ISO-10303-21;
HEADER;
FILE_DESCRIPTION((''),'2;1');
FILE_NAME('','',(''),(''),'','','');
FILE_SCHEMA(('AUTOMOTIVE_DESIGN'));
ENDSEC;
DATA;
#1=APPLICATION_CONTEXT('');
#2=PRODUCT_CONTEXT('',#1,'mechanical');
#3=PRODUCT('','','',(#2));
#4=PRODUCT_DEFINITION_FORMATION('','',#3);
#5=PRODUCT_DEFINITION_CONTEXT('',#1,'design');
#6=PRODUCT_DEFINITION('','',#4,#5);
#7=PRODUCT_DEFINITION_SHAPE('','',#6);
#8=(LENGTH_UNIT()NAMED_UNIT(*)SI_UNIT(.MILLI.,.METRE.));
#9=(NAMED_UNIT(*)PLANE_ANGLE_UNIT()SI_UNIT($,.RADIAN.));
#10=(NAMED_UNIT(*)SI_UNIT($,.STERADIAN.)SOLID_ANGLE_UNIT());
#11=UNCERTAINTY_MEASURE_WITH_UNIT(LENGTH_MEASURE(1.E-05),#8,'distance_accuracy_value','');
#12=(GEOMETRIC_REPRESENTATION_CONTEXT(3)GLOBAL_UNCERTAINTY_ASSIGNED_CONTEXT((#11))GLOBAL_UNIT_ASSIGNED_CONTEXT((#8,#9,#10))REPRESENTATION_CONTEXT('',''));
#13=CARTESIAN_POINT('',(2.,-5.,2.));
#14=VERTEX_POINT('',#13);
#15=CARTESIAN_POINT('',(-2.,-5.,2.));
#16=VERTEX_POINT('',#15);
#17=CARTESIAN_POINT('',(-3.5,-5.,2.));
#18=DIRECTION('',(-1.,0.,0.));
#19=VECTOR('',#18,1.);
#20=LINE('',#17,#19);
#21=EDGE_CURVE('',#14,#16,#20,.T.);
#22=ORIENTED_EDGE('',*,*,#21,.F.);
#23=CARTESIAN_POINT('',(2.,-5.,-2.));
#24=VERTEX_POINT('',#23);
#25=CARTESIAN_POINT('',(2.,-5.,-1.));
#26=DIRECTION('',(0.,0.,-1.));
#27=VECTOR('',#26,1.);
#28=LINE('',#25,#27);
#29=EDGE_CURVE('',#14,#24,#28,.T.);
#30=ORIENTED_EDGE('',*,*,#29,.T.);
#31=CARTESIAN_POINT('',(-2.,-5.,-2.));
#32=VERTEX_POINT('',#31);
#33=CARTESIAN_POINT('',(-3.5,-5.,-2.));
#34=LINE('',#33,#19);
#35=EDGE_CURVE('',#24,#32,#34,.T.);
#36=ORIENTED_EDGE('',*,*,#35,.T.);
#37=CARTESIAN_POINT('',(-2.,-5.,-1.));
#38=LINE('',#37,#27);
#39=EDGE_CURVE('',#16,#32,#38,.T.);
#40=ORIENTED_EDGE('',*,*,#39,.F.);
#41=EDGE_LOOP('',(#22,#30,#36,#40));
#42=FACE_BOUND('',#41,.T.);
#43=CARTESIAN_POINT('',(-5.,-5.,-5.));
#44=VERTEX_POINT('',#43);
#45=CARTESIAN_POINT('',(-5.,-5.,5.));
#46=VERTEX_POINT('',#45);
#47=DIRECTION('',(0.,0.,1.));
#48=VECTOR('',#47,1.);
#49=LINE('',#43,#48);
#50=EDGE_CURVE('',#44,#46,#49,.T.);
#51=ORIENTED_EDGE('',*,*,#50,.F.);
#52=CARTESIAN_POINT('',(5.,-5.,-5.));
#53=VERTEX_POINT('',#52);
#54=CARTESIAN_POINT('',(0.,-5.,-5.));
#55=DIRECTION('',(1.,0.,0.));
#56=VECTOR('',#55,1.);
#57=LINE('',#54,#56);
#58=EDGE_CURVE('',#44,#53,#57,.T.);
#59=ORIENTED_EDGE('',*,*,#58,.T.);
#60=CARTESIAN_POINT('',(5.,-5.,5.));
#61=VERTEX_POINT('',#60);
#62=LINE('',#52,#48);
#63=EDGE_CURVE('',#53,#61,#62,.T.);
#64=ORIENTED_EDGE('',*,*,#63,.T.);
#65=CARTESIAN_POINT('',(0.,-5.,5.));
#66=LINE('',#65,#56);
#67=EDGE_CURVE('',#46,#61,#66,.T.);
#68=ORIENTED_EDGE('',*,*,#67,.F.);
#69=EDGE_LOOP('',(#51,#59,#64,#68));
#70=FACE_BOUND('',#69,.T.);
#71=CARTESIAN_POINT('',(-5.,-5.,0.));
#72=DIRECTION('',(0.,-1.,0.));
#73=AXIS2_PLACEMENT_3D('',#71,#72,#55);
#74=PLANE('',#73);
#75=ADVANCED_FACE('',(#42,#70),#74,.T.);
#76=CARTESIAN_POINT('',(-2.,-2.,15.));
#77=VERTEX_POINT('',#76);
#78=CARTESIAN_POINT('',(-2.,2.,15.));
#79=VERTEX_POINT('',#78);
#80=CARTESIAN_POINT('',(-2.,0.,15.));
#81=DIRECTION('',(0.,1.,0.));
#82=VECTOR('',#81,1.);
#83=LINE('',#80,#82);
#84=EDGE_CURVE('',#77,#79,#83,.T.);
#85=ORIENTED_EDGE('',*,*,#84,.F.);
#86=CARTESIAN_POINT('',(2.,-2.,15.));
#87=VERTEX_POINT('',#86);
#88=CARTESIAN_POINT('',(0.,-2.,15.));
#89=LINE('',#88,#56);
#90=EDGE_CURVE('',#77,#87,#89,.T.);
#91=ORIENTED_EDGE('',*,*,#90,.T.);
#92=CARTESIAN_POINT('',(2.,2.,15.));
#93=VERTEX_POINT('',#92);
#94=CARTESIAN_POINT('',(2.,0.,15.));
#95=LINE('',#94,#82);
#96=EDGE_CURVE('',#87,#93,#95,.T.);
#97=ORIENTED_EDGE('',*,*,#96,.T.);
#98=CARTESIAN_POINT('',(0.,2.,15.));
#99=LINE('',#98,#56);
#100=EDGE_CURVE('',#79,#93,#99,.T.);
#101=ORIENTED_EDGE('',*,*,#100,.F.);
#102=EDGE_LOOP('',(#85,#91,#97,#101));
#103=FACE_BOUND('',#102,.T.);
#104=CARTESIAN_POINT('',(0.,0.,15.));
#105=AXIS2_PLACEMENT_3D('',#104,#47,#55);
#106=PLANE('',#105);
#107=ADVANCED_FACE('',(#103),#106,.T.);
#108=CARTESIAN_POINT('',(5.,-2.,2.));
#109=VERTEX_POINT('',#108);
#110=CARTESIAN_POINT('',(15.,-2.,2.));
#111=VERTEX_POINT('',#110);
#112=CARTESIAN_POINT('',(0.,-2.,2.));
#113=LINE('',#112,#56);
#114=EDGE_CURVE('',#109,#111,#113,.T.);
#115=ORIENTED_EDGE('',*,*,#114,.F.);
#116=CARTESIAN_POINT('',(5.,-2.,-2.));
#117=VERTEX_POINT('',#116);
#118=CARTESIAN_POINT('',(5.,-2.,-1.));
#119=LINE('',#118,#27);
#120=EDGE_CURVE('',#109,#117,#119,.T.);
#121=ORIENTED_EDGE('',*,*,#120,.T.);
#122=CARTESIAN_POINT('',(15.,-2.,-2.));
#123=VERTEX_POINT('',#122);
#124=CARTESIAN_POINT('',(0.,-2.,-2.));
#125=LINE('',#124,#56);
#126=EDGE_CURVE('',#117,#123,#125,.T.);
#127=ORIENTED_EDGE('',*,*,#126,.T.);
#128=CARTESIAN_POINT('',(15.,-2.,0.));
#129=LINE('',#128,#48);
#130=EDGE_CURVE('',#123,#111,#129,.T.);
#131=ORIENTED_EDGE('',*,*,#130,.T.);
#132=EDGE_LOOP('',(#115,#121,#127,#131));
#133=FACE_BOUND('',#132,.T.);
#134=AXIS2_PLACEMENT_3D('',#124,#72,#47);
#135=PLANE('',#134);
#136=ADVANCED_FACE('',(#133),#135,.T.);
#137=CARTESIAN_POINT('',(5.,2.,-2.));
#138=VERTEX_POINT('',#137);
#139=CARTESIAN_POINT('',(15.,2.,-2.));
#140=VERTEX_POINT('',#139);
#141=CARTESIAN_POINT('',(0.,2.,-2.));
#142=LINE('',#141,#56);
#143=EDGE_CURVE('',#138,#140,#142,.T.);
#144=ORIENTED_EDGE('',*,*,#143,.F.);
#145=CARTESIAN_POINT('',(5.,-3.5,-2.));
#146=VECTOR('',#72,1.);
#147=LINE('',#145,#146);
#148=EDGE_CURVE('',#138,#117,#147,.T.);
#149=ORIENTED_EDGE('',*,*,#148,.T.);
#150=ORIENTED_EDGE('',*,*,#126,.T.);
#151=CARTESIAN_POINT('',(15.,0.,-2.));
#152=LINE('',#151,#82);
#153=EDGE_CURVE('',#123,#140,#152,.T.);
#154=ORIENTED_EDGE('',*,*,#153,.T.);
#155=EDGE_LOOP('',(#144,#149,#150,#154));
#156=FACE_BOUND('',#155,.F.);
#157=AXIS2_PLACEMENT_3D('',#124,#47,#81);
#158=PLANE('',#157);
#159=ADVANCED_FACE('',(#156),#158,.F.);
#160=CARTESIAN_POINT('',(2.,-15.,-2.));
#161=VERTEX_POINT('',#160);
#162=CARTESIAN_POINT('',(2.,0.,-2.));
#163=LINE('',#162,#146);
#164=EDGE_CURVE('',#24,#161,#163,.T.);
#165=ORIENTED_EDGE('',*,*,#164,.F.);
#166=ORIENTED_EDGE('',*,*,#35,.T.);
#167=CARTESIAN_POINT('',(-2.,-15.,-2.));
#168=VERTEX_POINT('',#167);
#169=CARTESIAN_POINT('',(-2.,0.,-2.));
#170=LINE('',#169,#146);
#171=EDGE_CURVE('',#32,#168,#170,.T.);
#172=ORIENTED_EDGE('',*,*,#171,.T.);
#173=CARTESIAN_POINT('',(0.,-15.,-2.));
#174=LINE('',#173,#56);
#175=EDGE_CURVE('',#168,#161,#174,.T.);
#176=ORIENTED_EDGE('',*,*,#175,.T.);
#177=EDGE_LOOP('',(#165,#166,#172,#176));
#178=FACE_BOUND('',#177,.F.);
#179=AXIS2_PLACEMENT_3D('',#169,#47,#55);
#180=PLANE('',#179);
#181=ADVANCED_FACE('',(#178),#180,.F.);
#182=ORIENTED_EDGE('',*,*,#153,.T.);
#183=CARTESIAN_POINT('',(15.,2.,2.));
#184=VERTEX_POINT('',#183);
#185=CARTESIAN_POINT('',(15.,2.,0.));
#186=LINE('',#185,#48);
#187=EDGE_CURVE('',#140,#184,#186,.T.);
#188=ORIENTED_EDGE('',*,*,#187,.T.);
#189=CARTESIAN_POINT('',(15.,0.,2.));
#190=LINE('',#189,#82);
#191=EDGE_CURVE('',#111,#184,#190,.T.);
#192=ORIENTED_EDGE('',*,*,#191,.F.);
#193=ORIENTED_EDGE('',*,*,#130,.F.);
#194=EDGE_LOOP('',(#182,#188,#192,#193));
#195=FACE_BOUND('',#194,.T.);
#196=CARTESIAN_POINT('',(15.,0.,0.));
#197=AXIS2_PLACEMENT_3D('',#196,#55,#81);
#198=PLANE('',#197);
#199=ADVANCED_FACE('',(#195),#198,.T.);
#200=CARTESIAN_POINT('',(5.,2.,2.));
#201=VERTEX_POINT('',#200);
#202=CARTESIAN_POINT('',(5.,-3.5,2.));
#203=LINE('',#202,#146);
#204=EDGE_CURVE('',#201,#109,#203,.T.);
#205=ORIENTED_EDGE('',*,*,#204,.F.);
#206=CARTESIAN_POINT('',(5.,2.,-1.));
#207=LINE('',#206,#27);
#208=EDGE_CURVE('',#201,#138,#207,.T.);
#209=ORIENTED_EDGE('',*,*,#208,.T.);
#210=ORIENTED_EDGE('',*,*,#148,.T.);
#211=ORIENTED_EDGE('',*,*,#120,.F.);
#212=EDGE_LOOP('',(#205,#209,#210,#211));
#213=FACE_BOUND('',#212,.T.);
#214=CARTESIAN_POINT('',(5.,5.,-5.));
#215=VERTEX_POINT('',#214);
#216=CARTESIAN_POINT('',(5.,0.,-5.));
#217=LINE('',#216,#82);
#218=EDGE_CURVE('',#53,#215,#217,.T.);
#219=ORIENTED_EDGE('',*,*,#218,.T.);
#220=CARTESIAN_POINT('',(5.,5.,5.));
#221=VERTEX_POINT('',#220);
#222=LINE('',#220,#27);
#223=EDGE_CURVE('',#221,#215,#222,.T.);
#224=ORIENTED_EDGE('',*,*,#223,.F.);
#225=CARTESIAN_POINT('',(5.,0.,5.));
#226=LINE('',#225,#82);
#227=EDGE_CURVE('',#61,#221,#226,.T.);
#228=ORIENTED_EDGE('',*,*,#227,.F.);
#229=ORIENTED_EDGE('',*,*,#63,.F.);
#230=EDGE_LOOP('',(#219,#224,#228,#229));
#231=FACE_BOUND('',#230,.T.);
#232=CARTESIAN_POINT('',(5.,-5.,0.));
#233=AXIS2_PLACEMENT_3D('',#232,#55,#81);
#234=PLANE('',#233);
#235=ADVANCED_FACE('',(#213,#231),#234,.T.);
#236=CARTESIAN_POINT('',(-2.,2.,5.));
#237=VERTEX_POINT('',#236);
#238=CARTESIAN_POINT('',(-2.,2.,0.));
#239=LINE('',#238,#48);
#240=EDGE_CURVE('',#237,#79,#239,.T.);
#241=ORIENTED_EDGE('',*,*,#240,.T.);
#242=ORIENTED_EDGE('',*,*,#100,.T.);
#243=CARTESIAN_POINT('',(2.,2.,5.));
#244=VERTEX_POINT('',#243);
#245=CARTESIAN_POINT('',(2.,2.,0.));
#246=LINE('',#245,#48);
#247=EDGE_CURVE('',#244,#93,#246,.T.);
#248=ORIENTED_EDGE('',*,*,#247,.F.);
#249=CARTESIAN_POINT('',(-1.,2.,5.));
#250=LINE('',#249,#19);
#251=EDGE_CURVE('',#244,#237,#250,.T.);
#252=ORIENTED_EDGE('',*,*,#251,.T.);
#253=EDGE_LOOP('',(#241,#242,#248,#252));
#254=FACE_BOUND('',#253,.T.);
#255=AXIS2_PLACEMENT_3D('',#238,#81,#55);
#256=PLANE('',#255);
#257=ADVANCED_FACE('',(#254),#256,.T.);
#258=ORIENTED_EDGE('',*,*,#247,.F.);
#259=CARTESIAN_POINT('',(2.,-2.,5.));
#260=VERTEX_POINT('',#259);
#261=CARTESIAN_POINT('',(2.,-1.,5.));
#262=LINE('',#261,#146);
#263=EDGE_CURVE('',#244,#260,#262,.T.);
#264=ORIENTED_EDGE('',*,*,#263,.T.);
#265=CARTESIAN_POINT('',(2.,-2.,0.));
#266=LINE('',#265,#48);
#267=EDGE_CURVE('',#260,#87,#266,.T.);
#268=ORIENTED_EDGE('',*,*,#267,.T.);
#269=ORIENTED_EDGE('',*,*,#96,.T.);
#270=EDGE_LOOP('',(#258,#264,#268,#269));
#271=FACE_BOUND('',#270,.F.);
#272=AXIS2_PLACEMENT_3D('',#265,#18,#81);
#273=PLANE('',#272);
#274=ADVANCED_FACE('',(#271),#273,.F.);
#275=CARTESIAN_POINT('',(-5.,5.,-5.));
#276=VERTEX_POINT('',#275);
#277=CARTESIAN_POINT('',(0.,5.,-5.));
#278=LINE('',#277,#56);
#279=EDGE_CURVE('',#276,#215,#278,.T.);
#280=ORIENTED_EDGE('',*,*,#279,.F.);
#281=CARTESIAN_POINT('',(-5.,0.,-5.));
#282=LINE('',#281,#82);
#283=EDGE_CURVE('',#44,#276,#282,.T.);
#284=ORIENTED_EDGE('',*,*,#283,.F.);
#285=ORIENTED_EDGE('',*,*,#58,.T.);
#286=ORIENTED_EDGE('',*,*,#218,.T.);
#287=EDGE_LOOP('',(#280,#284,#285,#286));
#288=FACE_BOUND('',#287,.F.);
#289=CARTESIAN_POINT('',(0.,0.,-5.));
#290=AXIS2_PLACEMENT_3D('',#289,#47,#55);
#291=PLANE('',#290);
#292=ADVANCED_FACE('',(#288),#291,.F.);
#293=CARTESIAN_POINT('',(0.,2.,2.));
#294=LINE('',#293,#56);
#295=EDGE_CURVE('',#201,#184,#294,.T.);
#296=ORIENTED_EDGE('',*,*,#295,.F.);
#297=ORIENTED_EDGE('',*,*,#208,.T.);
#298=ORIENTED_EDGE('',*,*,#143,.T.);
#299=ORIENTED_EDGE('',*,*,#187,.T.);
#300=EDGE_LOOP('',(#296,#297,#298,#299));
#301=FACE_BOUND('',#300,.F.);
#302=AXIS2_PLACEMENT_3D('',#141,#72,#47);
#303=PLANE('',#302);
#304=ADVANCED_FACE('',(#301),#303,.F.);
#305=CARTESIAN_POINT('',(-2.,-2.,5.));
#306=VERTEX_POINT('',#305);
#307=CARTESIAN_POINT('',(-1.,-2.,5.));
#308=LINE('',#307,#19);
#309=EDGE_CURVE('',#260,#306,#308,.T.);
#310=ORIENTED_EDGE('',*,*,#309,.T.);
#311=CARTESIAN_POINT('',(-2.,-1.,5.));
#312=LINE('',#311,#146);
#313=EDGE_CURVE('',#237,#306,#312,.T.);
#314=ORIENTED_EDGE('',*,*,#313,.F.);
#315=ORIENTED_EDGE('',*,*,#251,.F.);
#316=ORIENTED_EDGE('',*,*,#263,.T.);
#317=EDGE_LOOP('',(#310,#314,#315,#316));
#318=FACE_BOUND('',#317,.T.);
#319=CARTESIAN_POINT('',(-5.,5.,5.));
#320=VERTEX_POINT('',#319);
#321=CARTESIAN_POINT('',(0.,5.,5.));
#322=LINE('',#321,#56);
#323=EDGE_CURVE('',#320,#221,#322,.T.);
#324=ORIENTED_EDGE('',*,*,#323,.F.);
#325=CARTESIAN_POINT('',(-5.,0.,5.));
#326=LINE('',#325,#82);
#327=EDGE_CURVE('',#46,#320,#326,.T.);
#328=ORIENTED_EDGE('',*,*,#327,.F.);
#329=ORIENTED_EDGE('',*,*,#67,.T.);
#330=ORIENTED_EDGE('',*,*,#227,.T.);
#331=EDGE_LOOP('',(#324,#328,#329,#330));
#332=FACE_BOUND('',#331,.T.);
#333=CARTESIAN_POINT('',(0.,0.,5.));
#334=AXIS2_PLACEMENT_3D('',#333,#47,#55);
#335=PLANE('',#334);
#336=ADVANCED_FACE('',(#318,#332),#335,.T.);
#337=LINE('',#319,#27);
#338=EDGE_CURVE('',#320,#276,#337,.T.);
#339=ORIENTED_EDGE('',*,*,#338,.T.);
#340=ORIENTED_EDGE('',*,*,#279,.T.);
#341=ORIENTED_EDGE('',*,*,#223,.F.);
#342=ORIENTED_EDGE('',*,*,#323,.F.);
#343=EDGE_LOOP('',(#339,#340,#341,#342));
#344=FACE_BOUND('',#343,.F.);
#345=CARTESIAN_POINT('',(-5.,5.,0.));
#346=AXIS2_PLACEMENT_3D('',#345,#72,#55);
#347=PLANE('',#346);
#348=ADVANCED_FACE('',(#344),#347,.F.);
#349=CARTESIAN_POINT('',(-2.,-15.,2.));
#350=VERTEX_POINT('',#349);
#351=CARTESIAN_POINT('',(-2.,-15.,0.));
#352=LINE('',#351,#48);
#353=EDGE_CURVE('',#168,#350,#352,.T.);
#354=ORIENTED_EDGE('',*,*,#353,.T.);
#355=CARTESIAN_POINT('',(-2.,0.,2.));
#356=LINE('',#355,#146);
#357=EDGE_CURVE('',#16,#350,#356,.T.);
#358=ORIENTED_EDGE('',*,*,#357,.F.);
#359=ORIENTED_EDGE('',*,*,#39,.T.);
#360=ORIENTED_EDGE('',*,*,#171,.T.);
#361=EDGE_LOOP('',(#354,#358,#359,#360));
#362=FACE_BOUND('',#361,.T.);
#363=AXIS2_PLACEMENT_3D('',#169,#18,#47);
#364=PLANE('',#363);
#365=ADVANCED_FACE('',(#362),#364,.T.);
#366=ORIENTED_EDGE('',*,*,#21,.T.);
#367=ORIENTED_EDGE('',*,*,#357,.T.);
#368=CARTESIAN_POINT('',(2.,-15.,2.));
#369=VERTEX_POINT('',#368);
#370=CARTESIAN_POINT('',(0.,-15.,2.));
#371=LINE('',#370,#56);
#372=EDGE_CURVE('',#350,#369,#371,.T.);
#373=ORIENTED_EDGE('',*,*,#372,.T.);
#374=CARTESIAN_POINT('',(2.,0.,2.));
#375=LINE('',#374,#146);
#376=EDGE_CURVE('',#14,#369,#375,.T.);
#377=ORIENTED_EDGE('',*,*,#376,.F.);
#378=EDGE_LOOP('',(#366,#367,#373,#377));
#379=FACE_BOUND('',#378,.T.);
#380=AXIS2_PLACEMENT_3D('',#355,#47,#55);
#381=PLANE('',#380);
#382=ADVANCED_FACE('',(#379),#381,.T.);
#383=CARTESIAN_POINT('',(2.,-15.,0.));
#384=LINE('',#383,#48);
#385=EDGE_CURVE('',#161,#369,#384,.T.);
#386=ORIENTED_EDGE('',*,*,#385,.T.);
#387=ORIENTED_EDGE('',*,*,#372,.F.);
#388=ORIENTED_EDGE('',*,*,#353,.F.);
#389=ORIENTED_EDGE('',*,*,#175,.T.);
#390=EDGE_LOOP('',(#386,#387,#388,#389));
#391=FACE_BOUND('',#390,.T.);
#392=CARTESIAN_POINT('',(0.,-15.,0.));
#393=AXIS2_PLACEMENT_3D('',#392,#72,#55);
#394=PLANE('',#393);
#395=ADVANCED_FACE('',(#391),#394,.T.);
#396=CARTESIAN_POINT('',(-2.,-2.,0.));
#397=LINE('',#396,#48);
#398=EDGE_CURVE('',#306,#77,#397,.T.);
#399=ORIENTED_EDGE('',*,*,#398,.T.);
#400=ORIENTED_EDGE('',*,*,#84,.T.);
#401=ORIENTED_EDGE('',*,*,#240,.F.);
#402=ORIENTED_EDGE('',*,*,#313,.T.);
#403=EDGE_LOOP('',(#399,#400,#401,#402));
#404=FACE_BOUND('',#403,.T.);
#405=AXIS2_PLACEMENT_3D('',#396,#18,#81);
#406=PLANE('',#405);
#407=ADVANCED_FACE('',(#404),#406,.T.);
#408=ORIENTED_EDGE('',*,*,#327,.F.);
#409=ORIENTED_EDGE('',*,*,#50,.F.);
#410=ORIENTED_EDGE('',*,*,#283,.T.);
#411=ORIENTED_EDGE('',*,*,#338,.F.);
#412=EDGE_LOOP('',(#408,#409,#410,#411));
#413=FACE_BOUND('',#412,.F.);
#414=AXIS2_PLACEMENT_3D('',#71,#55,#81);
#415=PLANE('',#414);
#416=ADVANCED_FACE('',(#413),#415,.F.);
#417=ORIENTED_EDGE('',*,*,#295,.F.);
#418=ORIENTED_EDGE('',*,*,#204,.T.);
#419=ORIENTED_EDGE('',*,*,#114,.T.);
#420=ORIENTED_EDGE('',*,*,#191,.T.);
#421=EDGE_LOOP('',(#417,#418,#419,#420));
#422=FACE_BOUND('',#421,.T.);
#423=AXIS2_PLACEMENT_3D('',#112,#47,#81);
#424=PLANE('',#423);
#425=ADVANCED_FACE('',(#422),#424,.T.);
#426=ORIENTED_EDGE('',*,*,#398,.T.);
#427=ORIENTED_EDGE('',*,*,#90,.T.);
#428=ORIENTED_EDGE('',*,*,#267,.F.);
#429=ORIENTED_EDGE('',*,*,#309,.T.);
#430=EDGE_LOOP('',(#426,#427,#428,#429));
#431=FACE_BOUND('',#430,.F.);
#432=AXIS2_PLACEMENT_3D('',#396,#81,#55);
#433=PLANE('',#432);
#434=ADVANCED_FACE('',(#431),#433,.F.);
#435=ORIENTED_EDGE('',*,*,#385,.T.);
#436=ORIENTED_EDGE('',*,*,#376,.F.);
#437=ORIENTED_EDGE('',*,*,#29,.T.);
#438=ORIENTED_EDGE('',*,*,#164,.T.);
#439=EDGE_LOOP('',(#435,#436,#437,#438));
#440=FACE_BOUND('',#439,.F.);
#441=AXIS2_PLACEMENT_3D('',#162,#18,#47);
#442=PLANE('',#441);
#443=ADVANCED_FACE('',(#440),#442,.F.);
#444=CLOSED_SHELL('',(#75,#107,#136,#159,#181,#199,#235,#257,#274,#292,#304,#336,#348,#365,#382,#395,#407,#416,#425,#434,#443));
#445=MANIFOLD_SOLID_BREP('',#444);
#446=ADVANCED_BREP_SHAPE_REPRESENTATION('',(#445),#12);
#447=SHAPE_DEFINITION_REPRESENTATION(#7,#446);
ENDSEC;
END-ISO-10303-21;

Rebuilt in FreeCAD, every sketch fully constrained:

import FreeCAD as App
import Part
import Sketcher

V = App.Vector
Q = App.Units.Quantity


def add_polygon(sketch, points):
    """Adds a closed chain of lines whose ends are joined by coincident constraints."""
    first, n = sketch.GeometryCount, len(points)
    for a, b in zip(points, points[1:] + points[:1]):
        sketch.addGeometry(Part.LineSegment(App.Vector(*a, 0), App.Vector(*b, 0)), False)
    for i in range(n):
        sketch.addConstraint(Sketcher.Constraint("Coincident", first + i, 2, first + (i + 1) % n, 1))

doc = App.newDocument("Part")
body = doc.addObject("PartDesign::Body", "Body")

sketch1 = doc.addObject("Sketcher::SketchObject", "Sketch")
body.addObject(sketch1)
sketch1.AttachmentSupport = (doc.XY_Plane, [""])
sketch1.MapMode = "FlatFace"
add_polygon(sketch1, [(-5, 5), (-5, -5), (5, -5), (5, 5)])
sketch1.addConstraint([
    Sketcher.Constraint("Vertical", 0),
    Sketcher.Constraint("Horizontal", 1),
    Sketcher.Constraint("Vertical", 2),
    Sketcher.Constraint("Horizontal", 3),
    Sketcher.Constraint("Symmetric", 0, 2, 2, 2, -1, 1),
    Sketcher.Constraint("Equal", 3, 0),
    Sketcher.Constraint("DistanceX", 1, 1, 1, 2, Q("10 mm")),
])
pad1 = doc.addObject("PartDesign::Pad", "Pad")
body.addObject(pad1)
pad1.Profile = sketch1
pad1.Length = 10
pad1.Midplane = True

sketch2 = doc.addObject("Sketcher::SketchObject", "Sketch001")
body.addObject(sketch2)
sketch2.AttachmentSupport = (doc.XY_Plane, [""])
sketch2.MapMode = "FlatFace"
add_polygon(sketch2, [(-2, 2), (-2, -2), (2, -2), (2, 2)])
sketch2.addConstraint([
    Sketcher.Constraint("Vertical", 0),
    Sketcher.Constraint("Horizontal", 1),
    Sketcher.Constraint("Vertical", 2),
    Sketcher.Constraint("Horizontal", 3),
    Sketcher.Constraint("Symmetric", 0, 2, 2, 2, -1, 1),
    Sketcher.Constraint("Equal", 3, 0),
    Sketcher.Constraint("DistanceX", 1, 1, 1, 2, Q("4 mm")),
])
pad2 = doc.addObject("PartDesign::Pad", "Pad001")
body.addObject(pad2)
pad2.Profile = sketch2
pad2.Length = 15

sketch3 = doc.addObject("Sketcher::SketchObject", "Sketch002")
body.addObject(sketch3)
sketch3.AttachmentSupport = (doc.XZ_Plane, [""])
sketch3.MapMode = "FlatFace"
add_polygon(sketch3, [(-2, 2), (-2, -2), (2, -2), (2, 2)])
sketch3.addConstraint([
    Sketcher.Constraint("Vertical", 0),
    Sketcher.Constraint("Horizontal", 1),
    Sketcher.Constraint("Vertical", 2),
    Sketcher.Constraint("Horizontal", 3),
    Sketcher.Constraint("Symmetric", 0, 2, 2, 2, -1, 1),
    Sketcher.Constraint("Equal", 3, 0),
    Sketcher.Constraint("DistanceX", 1, 1, 1, 2, Q("4 mm")),
])
pad3 = doc.addObject("PartDesign::Pad", "Pad002")
body.addObject(pad3)
pad3.Profile = sketch3
pad3.Length = 15

sketch4 = doc.addObject("Sketcher::SketchObject", "Sketch003")
body.addObject(sketch4)
sketch4.AttachmentSupport = (doc.YZ_Plane, [""])
sketch4.MapMode = "FlatFace"
add_polygon(sketch4, [(-2, 2), (-2, -2), (2, -2), (2, 2)])
sketch4.addConstraint([
    Sketcher.Constraint("Vertical", 0),
    Sketcher.Constraint("Horizontal", 1),
    Sketcher.Constraint("Vertical", 2),
    Sketcher.Constraint("Horizontal", 3),
    Sketcher.Constraint("Symmetric", 0, 2, 2, 2, -1, 1),
    Sketcher.Constraint("Equal", 3, 0),
    Sketcher.Constraint("DistanceX", 1, 1, 1, 2, Q("4 mm")),
])
pad4 = doc.addObject("PartDesign::Pad", "Pad003")
body.addObject(pad4)
pad4.Profile = sketch4
pad4.Length = 15

doc.recompute()
